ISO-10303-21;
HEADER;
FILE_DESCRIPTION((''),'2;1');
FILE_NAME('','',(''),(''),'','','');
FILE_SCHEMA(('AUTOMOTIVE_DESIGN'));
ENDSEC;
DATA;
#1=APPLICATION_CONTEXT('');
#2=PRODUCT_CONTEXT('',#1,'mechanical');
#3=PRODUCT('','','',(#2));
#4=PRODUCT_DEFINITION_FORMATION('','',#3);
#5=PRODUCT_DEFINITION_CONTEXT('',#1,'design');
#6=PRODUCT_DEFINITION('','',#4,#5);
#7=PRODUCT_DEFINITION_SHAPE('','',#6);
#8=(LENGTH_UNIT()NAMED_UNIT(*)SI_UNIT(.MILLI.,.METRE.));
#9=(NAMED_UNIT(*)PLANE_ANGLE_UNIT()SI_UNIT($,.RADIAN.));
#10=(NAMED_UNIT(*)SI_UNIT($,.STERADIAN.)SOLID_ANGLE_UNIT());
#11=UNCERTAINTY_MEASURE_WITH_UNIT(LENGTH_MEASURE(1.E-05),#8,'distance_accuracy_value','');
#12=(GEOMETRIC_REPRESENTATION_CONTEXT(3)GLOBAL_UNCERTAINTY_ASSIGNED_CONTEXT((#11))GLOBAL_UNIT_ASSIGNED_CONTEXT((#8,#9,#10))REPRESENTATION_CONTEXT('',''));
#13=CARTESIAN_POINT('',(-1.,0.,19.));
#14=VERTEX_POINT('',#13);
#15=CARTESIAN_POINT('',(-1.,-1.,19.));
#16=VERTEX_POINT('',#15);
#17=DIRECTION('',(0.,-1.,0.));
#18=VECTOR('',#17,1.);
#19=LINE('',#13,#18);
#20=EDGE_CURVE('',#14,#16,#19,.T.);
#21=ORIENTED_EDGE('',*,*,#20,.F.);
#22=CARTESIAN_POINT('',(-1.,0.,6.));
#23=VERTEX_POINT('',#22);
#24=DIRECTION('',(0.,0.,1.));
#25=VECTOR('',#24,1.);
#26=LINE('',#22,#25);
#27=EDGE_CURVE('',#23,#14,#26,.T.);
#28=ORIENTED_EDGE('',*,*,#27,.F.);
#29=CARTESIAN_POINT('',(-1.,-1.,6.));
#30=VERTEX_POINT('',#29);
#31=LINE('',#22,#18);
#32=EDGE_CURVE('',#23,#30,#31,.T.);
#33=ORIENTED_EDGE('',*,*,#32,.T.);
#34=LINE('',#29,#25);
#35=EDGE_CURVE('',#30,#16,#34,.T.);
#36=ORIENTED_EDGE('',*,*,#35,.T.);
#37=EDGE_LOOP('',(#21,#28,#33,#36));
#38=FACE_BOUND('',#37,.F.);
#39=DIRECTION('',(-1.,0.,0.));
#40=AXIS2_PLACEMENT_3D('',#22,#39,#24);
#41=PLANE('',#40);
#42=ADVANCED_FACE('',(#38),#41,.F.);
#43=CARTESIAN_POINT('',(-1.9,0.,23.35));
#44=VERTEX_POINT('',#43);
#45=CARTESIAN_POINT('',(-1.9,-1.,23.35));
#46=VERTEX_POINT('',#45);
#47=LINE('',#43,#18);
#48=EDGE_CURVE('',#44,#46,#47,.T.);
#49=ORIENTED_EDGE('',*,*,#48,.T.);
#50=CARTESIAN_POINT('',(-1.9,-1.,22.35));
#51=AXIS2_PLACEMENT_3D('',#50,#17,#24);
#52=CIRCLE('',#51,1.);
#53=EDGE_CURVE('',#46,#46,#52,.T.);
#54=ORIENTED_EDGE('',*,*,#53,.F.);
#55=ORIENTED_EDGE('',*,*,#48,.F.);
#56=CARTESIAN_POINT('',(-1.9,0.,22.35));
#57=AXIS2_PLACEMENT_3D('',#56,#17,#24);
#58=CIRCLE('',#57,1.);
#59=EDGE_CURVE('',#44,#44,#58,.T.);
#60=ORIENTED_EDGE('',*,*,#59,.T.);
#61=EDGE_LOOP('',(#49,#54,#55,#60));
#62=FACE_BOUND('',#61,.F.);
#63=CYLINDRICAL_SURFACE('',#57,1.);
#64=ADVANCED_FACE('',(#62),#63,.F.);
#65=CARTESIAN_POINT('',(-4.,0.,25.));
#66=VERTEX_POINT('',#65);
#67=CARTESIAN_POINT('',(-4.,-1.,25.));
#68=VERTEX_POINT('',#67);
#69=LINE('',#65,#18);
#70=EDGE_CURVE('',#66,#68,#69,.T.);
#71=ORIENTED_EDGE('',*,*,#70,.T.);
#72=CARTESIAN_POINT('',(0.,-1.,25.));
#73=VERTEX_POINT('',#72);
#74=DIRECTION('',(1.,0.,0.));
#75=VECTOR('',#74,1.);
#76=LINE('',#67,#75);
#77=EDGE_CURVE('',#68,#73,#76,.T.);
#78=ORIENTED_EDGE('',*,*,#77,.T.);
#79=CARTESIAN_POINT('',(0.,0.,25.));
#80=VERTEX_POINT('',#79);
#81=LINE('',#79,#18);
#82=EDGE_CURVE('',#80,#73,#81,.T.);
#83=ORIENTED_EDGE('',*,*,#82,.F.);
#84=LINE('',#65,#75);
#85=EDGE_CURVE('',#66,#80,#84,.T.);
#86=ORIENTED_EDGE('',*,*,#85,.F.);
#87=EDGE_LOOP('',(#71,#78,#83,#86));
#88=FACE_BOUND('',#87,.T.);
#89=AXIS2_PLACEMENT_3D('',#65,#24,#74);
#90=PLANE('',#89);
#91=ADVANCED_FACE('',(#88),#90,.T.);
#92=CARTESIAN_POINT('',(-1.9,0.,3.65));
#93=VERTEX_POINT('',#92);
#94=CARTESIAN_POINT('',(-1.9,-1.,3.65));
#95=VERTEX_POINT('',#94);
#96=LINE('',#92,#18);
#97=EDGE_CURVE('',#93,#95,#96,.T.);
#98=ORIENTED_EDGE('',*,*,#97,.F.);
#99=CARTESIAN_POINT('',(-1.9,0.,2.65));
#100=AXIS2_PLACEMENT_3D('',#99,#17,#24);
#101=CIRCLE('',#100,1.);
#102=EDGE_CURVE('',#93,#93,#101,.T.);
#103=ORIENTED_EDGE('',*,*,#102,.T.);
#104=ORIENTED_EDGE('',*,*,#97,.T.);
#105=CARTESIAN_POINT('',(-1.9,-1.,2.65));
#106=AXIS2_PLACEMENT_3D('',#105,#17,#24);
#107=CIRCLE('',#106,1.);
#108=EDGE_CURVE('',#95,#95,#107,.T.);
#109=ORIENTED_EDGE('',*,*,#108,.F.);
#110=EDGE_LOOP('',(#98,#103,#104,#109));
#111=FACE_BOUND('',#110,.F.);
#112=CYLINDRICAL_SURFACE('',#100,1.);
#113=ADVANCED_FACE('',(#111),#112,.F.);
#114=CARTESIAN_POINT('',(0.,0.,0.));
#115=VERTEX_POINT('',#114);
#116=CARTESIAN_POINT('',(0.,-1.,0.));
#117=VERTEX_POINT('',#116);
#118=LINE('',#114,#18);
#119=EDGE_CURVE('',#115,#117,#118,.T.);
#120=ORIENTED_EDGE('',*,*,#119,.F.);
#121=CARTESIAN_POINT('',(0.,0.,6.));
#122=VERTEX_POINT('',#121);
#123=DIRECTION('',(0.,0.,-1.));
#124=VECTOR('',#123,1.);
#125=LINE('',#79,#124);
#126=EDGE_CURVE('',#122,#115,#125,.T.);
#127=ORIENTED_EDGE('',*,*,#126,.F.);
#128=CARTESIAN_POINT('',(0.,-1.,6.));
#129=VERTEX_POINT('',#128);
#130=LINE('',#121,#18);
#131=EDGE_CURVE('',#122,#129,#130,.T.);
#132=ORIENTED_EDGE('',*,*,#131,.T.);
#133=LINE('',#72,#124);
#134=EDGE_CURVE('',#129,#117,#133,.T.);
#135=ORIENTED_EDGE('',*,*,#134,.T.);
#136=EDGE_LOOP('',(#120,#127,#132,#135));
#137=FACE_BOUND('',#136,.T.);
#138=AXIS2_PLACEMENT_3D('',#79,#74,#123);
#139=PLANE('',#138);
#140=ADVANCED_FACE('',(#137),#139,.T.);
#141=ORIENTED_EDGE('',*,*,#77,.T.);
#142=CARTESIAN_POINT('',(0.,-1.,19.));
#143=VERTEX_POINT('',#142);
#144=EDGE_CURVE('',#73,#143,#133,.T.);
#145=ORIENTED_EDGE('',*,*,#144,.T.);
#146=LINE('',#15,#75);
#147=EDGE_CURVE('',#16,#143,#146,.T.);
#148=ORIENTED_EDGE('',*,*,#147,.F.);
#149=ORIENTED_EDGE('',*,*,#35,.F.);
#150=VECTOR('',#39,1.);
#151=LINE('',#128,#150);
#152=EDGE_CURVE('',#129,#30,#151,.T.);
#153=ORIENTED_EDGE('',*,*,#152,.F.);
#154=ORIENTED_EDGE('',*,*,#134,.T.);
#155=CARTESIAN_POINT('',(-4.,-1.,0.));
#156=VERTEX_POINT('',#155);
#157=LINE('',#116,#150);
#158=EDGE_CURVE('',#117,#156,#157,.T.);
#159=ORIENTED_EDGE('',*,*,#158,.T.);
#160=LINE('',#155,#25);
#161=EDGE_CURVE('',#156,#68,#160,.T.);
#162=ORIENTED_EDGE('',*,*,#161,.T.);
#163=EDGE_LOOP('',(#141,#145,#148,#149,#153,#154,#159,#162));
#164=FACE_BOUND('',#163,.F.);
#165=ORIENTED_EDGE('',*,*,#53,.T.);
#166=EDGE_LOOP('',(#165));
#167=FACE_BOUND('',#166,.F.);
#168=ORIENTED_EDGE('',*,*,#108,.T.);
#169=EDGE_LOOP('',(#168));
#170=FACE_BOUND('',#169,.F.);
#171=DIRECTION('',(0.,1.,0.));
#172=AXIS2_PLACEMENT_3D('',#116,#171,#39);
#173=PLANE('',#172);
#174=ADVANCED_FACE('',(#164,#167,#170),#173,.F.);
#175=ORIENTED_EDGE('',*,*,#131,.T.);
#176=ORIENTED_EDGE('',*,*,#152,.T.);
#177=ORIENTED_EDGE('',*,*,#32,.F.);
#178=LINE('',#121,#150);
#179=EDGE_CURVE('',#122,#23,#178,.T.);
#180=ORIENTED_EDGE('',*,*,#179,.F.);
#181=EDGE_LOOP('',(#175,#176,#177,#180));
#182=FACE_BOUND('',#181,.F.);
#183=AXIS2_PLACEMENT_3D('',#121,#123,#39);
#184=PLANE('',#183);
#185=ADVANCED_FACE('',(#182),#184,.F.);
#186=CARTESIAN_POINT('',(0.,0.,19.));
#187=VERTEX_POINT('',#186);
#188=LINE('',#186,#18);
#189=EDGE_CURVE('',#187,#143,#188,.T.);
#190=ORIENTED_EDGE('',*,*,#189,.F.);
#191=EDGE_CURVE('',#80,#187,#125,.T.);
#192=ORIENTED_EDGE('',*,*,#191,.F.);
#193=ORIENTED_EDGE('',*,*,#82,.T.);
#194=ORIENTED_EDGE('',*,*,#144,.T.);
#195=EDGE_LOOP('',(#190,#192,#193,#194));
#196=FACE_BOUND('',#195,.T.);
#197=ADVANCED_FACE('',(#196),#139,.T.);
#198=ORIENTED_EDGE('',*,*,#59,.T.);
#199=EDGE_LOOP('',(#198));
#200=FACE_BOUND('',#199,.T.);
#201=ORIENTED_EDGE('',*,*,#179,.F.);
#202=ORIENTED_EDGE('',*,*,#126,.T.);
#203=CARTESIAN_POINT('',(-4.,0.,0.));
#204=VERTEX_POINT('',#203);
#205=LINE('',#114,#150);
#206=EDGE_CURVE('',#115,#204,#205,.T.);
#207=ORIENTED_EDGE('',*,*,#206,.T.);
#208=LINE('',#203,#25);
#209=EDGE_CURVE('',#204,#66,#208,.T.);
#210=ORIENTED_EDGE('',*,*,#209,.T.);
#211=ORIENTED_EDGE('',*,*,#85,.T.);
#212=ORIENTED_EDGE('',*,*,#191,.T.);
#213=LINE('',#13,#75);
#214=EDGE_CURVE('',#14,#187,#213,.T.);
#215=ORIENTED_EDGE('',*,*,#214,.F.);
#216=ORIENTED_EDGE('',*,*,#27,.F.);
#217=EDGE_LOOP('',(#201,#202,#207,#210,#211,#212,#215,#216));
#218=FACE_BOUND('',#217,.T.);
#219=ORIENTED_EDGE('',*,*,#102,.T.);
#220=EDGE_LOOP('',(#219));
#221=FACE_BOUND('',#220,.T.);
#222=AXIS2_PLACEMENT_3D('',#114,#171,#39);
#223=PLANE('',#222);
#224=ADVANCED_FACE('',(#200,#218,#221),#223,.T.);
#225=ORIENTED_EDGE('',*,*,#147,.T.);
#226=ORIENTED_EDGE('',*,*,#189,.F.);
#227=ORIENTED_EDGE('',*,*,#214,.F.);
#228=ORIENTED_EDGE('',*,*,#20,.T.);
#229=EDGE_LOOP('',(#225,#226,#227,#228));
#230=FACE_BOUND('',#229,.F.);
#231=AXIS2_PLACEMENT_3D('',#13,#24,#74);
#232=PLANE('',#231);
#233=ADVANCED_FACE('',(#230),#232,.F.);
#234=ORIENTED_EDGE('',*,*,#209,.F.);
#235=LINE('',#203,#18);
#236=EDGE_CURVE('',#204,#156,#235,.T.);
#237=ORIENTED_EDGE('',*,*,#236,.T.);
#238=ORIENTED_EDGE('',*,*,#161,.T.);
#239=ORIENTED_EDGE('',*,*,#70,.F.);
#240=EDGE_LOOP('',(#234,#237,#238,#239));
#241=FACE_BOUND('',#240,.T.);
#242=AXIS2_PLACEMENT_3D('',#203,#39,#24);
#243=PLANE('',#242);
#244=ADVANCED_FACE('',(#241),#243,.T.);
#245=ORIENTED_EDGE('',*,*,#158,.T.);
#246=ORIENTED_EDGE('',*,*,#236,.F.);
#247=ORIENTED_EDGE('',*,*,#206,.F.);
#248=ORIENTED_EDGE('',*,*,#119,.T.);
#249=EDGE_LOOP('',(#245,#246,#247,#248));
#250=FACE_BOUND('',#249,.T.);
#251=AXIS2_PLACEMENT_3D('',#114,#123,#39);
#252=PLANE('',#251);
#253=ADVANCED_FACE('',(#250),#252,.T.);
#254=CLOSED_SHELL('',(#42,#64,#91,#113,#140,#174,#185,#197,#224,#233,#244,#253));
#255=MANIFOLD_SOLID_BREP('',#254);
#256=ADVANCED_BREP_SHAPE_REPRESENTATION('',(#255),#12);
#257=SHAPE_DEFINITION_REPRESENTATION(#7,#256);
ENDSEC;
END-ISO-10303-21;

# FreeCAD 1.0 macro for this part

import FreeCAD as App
import Part
import Sketcher

V = App.Vector

doc = App.newDocument("Part")
body = doc.addObject("PartDesign::Body", "Body")

sketch1 = body.newObject("Sketcher::SketchObject", "Sketch")
sketch1.AttachmentSupport = (doc.getObject("XZ_Plane"), [""])
sketch1.MapMode = "FlatFace"
sketch1.addGeometry([
    Part.LineSegment(V(0, 25, 0), V(0, 0, 0)),
    Part.LineSegment(V(0, 0, 0), V(-4, 0, 0)),
    Part.LineSegment(V(-4, 0, 0), V(-4, 25, 0)),
    Part.LineSegment(V(-4, 25, 0), V(0, 25, 0)),
], False)
sketch1.addConstraint([
    Sketcher.Constraint("Coincident", 0, 2, 1, 1),
    Sketcher.Constraint("Coincident", 1, 2, 2, 1),
    Sketcher.Constraint("Coincident", 2, 2, 3, 1),
    Sketcher.Constraint("Coincident", 3, 2, 0, 1),
    Sketcher.Constraint("Vertical", 0),
    Sketcher.Constraint("Horizontal", 1),
    Sketcher.Constraint("Vertical", 2),
    Sketcher.Constraint("Horizontal", 3),
    Sketcher.Constraint("Coincident", 0, 2, -1, 1),
    Sketcher.Constraint("DistanceX", 1, 2, 1, 1, 4.0),
    Sketcher.Constraint("DistanceY", 0, 2, 0, 1, 25.0),
])
pad1 = body.newObject("PartDesign::Pad", "Pad")
pad1.Profile = sketch1
pad1.Length = 1

sketch2 = body.newObject("Sketcher::SketchObject", "Sketch001")
sketch2.AttachmentSupport = (doc.getObject("XZ_Plane"), [""])
sketch2.MapMode = "FlatFace"
sketch2.addGeometry([
    Part.LineSegment(V(-1, 6, 0), V(-1, 19, 0)),
    Part.LineSegment(V(-1, 19, 0), V(0, 19, 0)),
    Part.LineSegment(V(0, 19, 0), V(0, 6, 0)),
    Part.LineSegment(V(0, 6, 0), V(-1, 6, 0)),
], False)
sketch2.addConstraint([
    Sketcher.Constraint("Coincident", 0, 2, 1, 1),
    Sketcher.Constraint("Coincident", 1, 2, 2, 1),
    Sketcher.Constraint("Coincident", 2, 2, 3, 1),
    Sketcher.Constraint("Coincident", 3, 2, 0, 1),
    Sketcher.Constraint("Vertical", 0),
    Sketcher.Constraint("Horizontal", 1),
    Sketcher.Constraint("Vertical", 2),
    Sketcher.Constraint("Horizontal", 3),
    Sketcher.Constraint("PointOnObject", 1, 2, -2),
    Sketcher.Constraint("DistanceX", 1, 1, 1, 2, 1.0),
    Sketcher.Constraint("DistanceY", 0, 1, 0, 2, 13.0),
    Sketcher.Constraint("DistanceY", -1, 1, 0, 2, 19.0),
])
pocket1 = body.newObject("PartDesign::Pocket", "Pocket")
pocket1.Profile = sketch2
pocket1.Length = 1
pocket1.Reversed = True

sketch3 = body.newObject("Sketcher::SketchObject", "Sketch002")
sketch3.AttachmentSupport = (doc.getObject("XZ_Plane"), [""])
sketch3.MapMode = "FlatFace"
sketch3.addGeometry([
    Part.Circle(V(-1.9, 2.6, 0), V(0, 0, 1), 1),
    Part.Circle(V(-1.9, 22.4, 0), V(0, 0, 1), 1),
], False)
sketch3.addConstraint([
    Sketcher.Constraint("Equal", 0, 1),
    Sketcher.Constraint("Vertical", 0, 3, 1, 3),
    Sketcher.Constraint("Diameter", 0, 2.0),
    Sketcher.Constraint("DistanceX", 0, 3, -1, 1, 1.9),
    Sketcher.Constraint("DistanceY", 0, 3, 1, 3, 19.7),
    Sketcher.Constraint("DistanceY", -1, 1, 0, 3, 2.65),
])
doc.recompute()
hole = body.newObject("PartDesign::Hole", "Hole")
hole.Profile = sketch3
hole.ThreadType = "None"
hole.Diameter = 2
hole.DepthType = "Dimension"
hole.Depth = 2
hole.DrillPoint = "Angled"
hole.DrillPointAngle = 118
hole.Reversed = True

doc.recompute()
